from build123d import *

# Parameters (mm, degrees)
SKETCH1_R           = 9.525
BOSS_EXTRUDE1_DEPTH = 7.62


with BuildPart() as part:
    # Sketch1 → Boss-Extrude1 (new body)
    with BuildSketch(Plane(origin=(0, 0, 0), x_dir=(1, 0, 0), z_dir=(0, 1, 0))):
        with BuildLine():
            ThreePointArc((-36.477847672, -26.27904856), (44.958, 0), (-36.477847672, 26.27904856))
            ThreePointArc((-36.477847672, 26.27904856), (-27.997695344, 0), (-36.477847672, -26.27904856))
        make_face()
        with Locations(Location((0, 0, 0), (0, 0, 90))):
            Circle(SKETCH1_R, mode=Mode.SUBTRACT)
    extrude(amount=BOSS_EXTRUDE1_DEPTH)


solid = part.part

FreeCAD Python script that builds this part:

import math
import FreeCAD as App
import Part
import Sketcher
from FreeCAD import Vector
Q = App.Units.Quantity

doc = App.newDocument("Part")
body = doc.addObject("PartDesign::Body", "Body")

sketch1 = body.newObject("Sketcher::SketchObject", "Sketch")
sketch1.AttachmentSupport = (doc.getObject("XZ_Plane"), [""])
sketch1.MapMode = "FlatFace"
sketch1.addGeometry(Part.ArcOfCircle(Part.Circle(Vector(0, 0, 0), Vector(0, 0, 1), 45), math.radians(-144), math.radians(144)), False)
sketch1.addGeometry(Part.ArcOfCircle(Part.Circle(Vector(-73, 0, 0), Vector(0, 0, 1), 45), math.radians(-36), math.radians(36)), False)
sketch1.addGeometry(Part.Circle(Vector(0, 0, 0), Vector(0, 0, 1), 10), False)
sketch1.addConstraint(Sketcher.Constraint("Coincident", 0, 1, 1, 1))
sketch1.addConstraint(Sketcher.Constraint("Coincident", 1, 2, 0, 2))
sketch1.addConstraint(Sketcher.Constraint("Coincident", 0, 3, -1, 1))
sketch1.addConstraint(Sketcher.Constraint("Coincident", 2, 3, -1, 1))
sketch1.addConstraint(Sketcher.Constraint("Equal", 0, 1))
sketch1.addConstraint(Sketcher.Constraint("PointOnObject", 1, 3, -1))
sketch1.addConstraint(Sketcher.Constraint("Diameter", 2, Q("0.75 in")))
sketch1.addConstraint(Sketcher.Constraint("Radius", 0, Q("1.77 in")))
sketch1.addConstraint(Sketcher.Constraint("DistanceY", 0, 1, -1, 1, 26.279049))
pad1 = body.newObject("PartDesign::Pad", "Pad")
pad1.Profile = sketch1
pad1.Length = Q("0.3 in")
pad1.Reversed = True

doc.recompute()
